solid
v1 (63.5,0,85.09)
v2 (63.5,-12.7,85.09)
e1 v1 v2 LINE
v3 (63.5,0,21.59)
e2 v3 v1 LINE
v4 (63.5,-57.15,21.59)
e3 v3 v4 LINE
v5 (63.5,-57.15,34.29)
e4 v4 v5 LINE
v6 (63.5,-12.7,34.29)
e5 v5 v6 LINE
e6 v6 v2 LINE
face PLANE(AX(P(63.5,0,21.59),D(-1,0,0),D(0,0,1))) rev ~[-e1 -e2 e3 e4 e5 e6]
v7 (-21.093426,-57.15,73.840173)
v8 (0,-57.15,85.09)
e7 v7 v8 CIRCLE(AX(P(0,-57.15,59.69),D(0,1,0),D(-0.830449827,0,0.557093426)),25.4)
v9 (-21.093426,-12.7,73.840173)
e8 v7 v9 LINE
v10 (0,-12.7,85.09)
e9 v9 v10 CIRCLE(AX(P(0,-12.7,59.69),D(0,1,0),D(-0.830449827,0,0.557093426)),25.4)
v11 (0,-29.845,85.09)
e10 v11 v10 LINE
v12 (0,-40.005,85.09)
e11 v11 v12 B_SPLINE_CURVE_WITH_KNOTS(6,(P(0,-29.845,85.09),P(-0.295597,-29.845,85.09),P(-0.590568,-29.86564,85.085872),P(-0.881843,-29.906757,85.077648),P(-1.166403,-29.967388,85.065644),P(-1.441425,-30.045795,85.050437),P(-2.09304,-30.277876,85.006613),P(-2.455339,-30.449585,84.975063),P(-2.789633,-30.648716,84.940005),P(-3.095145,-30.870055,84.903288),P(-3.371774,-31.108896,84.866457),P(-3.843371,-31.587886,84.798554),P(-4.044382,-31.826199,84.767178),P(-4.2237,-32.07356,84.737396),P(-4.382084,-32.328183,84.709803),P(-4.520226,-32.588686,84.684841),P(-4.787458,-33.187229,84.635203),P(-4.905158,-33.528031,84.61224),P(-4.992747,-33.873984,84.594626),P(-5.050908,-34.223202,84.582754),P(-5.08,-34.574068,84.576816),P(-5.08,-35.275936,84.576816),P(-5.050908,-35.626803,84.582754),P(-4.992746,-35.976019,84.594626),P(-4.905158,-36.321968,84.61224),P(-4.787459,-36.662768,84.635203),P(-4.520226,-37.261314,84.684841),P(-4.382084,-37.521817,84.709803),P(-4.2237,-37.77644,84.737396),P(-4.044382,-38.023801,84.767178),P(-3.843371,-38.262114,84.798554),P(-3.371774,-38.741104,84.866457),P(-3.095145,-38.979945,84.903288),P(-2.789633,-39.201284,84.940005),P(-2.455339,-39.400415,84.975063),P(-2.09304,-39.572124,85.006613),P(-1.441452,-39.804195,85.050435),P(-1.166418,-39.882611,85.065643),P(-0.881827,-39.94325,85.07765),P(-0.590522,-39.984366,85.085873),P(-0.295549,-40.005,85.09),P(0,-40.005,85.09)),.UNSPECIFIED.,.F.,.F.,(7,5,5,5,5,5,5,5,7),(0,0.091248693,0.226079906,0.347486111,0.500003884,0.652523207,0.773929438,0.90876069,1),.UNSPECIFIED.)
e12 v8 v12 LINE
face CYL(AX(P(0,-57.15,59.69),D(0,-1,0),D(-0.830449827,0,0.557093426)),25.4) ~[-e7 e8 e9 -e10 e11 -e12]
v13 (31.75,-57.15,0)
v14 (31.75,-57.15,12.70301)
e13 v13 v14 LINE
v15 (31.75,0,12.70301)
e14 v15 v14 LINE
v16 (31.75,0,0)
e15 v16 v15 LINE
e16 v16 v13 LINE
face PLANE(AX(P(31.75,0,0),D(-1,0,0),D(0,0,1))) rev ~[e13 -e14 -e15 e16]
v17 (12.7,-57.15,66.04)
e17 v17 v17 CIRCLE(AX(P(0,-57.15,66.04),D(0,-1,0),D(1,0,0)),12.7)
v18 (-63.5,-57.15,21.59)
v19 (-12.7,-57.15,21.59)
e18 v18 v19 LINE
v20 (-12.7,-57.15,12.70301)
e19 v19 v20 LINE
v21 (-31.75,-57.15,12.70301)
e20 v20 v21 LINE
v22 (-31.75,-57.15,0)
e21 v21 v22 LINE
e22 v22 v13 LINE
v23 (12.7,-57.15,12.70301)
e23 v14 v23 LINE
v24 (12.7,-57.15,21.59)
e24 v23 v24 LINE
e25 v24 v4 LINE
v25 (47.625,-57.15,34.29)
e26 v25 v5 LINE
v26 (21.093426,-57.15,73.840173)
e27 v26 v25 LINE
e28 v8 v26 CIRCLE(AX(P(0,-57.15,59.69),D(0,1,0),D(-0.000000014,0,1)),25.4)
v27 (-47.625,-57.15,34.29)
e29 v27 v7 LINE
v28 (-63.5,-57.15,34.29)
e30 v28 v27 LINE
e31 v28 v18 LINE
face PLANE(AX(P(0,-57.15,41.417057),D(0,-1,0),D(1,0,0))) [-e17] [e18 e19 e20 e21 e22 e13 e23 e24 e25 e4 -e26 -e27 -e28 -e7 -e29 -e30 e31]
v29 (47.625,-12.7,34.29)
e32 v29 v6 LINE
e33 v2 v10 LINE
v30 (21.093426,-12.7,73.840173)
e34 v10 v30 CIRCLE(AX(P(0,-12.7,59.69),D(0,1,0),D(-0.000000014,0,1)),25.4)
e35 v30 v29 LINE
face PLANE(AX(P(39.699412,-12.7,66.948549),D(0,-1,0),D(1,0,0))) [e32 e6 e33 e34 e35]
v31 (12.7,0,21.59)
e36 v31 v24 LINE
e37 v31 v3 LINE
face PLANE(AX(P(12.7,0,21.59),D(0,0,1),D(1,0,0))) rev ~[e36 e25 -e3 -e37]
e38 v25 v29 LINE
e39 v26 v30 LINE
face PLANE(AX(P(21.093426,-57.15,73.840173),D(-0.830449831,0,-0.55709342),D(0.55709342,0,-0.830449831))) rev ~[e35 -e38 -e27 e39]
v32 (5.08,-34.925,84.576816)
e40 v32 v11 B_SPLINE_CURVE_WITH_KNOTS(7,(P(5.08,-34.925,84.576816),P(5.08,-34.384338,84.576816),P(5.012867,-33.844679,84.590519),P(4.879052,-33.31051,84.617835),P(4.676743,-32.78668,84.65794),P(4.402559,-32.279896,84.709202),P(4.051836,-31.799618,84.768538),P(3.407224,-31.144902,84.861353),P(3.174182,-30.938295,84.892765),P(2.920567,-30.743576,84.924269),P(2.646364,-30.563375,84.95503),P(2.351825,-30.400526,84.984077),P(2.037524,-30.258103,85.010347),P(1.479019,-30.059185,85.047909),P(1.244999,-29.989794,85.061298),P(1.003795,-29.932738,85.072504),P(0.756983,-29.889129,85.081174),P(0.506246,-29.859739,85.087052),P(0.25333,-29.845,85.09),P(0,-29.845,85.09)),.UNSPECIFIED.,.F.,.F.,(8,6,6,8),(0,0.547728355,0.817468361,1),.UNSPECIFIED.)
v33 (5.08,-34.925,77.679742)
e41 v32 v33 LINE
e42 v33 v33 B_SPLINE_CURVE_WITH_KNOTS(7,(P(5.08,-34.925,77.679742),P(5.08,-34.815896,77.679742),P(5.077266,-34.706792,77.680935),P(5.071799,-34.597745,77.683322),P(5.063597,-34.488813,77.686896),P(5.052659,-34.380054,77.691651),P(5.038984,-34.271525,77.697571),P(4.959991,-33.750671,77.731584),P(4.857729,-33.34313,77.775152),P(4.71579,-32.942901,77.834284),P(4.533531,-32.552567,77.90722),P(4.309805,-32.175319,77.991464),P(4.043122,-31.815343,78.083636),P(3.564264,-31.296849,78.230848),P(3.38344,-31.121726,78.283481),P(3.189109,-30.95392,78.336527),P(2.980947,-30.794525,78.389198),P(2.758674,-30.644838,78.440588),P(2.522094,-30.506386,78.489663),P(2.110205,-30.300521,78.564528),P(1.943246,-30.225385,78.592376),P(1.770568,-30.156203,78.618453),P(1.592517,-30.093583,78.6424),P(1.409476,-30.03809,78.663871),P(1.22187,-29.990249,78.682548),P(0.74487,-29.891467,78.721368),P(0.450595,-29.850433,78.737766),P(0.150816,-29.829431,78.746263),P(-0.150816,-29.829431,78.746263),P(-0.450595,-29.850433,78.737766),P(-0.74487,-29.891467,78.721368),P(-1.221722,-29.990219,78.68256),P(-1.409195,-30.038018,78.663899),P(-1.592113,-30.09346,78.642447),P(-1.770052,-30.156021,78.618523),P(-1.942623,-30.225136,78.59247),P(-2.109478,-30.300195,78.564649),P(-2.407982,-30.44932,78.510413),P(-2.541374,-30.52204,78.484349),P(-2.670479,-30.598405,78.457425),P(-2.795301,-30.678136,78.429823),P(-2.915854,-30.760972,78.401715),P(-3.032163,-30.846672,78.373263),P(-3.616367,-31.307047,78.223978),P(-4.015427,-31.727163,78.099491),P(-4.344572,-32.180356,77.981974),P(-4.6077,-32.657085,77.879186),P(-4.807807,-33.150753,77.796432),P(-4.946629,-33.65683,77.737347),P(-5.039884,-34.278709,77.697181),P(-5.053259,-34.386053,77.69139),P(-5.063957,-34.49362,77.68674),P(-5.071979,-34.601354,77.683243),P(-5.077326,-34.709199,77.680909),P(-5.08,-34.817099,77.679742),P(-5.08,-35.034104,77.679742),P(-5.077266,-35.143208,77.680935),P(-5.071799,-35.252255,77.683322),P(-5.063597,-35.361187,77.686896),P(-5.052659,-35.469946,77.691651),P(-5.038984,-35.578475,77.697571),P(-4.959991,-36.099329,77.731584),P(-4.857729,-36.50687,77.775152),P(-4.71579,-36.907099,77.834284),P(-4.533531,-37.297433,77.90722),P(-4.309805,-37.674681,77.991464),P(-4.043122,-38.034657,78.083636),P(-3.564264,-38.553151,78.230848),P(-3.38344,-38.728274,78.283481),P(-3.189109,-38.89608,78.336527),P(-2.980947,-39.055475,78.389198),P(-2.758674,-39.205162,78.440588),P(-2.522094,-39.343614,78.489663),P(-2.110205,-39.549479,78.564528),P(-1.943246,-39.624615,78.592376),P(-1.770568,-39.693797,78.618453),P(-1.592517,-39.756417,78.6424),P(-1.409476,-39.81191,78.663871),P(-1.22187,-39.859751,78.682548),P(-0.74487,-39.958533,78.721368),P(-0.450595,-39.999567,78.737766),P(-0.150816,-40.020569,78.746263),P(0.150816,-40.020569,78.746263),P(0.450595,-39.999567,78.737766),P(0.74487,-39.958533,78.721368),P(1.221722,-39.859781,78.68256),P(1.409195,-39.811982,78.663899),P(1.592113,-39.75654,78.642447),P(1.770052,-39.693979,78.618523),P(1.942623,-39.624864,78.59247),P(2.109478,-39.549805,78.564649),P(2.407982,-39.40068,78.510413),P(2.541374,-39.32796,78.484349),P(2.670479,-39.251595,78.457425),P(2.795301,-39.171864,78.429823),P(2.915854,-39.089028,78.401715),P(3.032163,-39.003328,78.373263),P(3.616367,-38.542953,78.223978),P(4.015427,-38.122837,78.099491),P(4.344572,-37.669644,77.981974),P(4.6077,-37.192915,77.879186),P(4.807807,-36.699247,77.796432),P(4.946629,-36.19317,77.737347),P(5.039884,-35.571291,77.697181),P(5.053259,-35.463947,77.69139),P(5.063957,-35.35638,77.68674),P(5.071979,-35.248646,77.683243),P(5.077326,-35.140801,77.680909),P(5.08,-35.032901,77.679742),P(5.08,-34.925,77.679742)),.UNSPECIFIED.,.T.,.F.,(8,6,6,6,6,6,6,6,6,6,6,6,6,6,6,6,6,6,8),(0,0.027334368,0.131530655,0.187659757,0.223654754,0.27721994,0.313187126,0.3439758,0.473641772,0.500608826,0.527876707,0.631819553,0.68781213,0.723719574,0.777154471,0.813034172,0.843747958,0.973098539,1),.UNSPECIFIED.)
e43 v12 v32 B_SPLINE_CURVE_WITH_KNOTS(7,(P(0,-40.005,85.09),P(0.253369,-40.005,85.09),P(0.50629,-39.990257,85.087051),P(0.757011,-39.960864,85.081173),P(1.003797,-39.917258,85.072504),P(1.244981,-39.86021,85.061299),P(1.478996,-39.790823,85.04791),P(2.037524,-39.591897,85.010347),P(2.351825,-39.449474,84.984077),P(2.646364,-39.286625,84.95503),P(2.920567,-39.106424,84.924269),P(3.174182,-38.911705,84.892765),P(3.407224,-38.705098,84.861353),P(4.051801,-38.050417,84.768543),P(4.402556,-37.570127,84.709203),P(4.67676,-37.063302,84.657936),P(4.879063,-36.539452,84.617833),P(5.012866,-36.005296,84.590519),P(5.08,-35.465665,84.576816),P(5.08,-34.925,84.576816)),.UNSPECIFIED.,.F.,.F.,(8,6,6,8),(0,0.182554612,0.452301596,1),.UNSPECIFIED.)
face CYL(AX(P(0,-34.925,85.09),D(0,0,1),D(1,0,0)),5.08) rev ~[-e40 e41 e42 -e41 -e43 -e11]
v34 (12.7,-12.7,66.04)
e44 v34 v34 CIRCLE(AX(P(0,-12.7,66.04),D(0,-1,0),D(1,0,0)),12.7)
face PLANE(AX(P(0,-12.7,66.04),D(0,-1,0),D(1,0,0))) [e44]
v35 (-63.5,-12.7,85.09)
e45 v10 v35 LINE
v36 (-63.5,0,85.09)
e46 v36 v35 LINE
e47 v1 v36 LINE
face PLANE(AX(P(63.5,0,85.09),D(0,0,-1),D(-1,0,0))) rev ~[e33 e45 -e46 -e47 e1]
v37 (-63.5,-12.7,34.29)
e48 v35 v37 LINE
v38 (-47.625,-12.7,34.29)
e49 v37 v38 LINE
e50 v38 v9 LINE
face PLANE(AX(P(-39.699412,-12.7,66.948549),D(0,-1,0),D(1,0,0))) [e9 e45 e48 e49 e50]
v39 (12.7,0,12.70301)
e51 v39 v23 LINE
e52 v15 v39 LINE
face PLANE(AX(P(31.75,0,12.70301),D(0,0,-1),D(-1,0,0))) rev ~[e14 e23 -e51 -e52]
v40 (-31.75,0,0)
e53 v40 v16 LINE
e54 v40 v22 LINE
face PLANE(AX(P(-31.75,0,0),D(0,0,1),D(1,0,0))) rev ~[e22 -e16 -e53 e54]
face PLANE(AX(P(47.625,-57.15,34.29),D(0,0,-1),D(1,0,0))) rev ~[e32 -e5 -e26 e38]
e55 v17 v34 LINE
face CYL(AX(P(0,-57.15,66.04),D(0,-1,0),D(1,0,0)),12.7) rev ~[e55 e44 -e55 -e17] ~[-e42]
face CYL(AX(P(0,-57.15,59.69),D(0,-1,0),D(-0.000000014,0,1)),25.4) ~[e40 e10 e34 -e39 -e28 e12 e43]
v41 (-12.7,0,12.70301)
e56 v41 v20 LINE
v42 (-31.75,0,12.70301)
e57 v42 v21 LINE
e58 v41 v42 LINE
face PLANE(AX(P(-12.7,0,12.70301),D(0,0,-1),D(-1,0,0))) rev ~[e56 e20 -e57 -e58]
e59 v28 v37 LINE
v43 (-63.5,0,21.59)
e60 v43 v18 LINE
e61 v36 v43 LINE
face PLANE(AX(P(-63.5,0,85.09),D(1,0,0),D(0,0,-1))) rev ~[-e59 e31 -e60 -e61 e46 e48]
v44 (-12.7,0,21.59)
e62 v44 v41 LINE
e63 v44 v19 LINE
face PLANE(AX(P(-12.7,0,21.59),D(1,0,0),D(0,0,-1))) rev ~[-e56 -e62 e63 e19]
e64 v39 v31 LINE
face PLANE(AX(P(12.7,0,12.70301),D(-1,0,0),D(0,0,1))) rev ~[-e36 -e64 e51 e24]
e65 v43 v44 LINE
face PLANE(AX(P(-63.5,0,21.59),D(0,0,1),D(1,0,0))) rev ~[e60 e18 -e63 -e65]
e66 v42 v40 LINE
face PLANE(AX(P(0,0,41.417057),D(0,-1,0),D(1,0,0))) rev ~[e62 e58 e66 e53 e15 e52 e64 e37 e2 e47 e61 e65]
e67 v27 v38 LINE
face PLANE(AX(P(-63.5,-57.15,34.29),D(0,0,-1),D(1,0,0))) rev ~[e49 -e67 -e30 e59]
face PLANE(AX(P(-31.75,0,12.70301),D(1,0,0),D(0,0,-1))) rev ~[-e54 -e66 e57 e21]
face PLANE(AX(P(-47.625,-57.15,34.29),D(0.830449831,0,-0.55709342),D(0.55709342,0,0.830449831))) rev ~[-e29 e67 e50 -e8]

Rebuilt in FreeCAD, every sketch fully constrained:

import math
import FreeCAD as App
import Part
import Sketcher
from FreeCAD import Vector
Q = App.Units.Quantity

doc = App.newDocument("Part")
body = doc.addObject("PartDesign::Body", "Body")

sketch1 = body.newObject("Sketcher::SketchObject", "Sketch")
sketch1.AttachmentSupport = (doc.getObject("XZ_Plane"), [""])
sketch1.MapMode = "FlatFace"
sketch1.addGeometry([
    Part.LineSegment(Vector(-32, 0, 0), Vector(32, 0, 0)),
    Part.LineSegment(Vector(32, 0, 0), Vector(32, 13, 0)),
    Part.LineSegment(Vector(32, 13, 0), Vector(13, 13, 0)),
    Part.LineSegment(Vector(13, 13, 0), Vector(13, 22, 0)),
    Part.LineSegment(Vector(13, 22, 0), Vector(64, 22, 0)),
    Part.LineSegment(Vector(64, 22, 0), Vector(64, 85, 0)),
    Part.LineSegment(Vector(64, 85, 0), Vector(-64, 85, 0)),
    Part.LineSegment(Vector(-64, 85, 0), Vector(-64, 22, 0)),
    Part.LineSegment(Vector(-64, 22, 0), Vector(-13, 22, 0)),
    Part.LineSegment(Vector(-13, 22, 0), Vector(-13, 13, 0)),
    Part.LineSegment(Vector(-13, 13, 0), Vector(-32, 13, 0)),
    Part.LineSegment(Vector(-32, 13, 0), Vector(-32, 0, 0)),
], False)
sketch1.addConstraint([
    Sketcher.Constraint("Coincident", 0, 2, 1, 1),
    Sketcher.Constraint("Coincident", 1, 2, 2, 1),
    Sketcher.Constraint("Coincident", 2, 2, 3, 1),
    Sketcher.Constraint("Coincident", 3, 2, 4, 1),
    Sketcher.Constraint("Coincident", 4, 2, 5, 1),
    Sketcher.Constraint("Coincident", 5, 2, 6, 1),
    Sketcher.Constraint("Coincident", 6, 2, 7, 1),
    Sketcher.Constraint("Coincident", 7, 2, 8, 1),
    Sketcher.Constraint("Coincident", 8, 2, 9, 1),
    Sketcher.Constraint("Coincident", 9, 2, 10, 1),
    Sketcher.Constraint("Coincident", 10, 2, 11, 1),
    Sketcher.Constraint("Coincident", 11, 2, 0, 1),
    Sketcher.Constraint("Horizontal", 0),
    Sketcher.Constraint("Vertical", 1),
    Sketcher.Constraint("Horizontal", 2),
    Sketcher.Constraint("Vertical", 3),
    Sketcher.Constraint("Horizontal", 4),
    Sketcher.Constraint("Vertical", 5),
    Sketcher.Constraint("Horizontal", 6),
    Sketcher.Constraint("Vertical", 7),
    Sketcher.Constraint("Horizontal", 8),
    Sketcher.Constraint("Vertical", 9),
    Sketcher.Constraint("Horizontal", 10),
    Sketcher.Constraint("Vertical", 11),
    Sketcher.Constraint("Symmetric", 0, 2, 11, 2, -1, 1),
    Sketcher.Constraint("Symmetric", 4, 2, 7, 2, -2),
    Sketcher.Constraint("Symmetric", 2, 2, 9, 2, -2),
    Sketcher.Constraint("Equal", 0, 5),
    Sketcher.Constraint("DistanceX", 4, 1, 4, 2, Q("2 in")),
    Sketcher.Constraint("DistanceX", 6, 2, 6, 1, Q("5 in")),
    Sketcher.Constraint("DistanceX", 0, 1, 0, 2, Q("2.5 in")),
    Sketcher.Constraint("DistanceY", -1, 1, 3, 2, Q("0.85 in")),
    Sketcher.Constraint("DistanceY", 1, 1, 1, 2, 12.70301),
])
pad1 = body.newObject("PartDesign::Pad", "Pad")
pad1.Profile = sketch1
pad1.Length = Q("2.25 in")

sketch2 = body.newObject("Sketcher::SketchObject", "Sketch001")
sketch2.AttachmentSupport = (doc.getObject("XZ_Plane"), [""])
sketch2.MapMode = "FlatFace"
sketch2.AttachmentOffset = App.Placement(Vector(0, 0, 2.25 * 25.4), App.Rotation())
sketch2.addGeometry([
    Part.LineSegment(Vector(-64, 85, 0), Vector(-64, 34, 0)),
    Part.LineSegment(Vector(-64, 34, 0), Vector(-48, 34, 0)),
    Part.LineSegment(Vector(-48, 34, 0), Vector(-21, 74, 0)),
    Part.ArcOfCircle(Part.Circle(Vector(0, 60, 0), Vector(0, 0, 1), 25), math.radians(90), math.radians(146)),
    Part.LineSegment(Vector(0, 85, 0), Vector(-64, 85, 0)),
    Part.LineSegment(Vector(64, 85, 0), Vector(0, 85, 0)),
    Part.ArcOfCircle(Part.Circle(Vector(0, 60, 0), Vector(0, 0, 1), 25), math.radians(34), math.radians(90)),
    Part.LineSegment(Vector(21, 74, 0), Vector(48, 34, 0)),
    Part.LineSegment(Vector(48, 34, 0), Vector(64, 34, 0)),
    Part.LineSegment(Vector(64, 34, 0), Vector(64, 85, 0)),
], False)
sketch2.addConstraint([
    Sketcher.Constraint("Coincident", 0, 2, 1, 1),
    Sketcher.Constraint("Coincident", 1, 2, 2, 1),
    Sketcher.Constraint("Tangent", 2, 2, 3, 2),
    Sketcher.Constraint("Tangent", 3, 1, 4, 1),
    Sketcher.Constraint("Coincident", 4, 2, 0, 1),
    Sketcher.Constraint("Tangent", 5, 2, 6, 2),
    Sketcher.Constraint("Tangent", 6, 1, 7, 1),
    Sketcher.Constraint("Coincident", 7, 2, 8, 1),
    Sketcher.Constraint("Coincident", 8, 2, 9, 1),
    Sketcher.Constraint("Coincident", 9, 2, 5, 1),
    Sketcher.Constraint("Vertical", 0),
    Sketcher.Constraint("Horizontal", 1),
    Sketcher.Constraint("Horizontal", 4),
    Sketcher.Constraint("Horizontal", 5),
    Sketcher.Constraint("Horizontal", 8),
    Sketcher.Constraint("Vertical", 9),
    Sketcher.Constraint("Coincident", 6, 3, 3, 3),
    Sketcher.Constraint("Equal", 3, 6),
    Sketcher.Constraint("Symmetric", 2, 2, 6, 1, -2),
    Sketcher.Constraint("Symmetric", 0, 2, 8, 2, -2),
    Sketcher.Constraint("Radius", 3, Q("1 in")),
    Sketcher.Constraint("DistanceY", 0, 2, 0, 1, Q("2 in")),
    Sketcher.Constraint("DistanceX", 4, 2, 4, 1, Q("2.5 in")),
    Sketcher.Constraint("DistanceX", 1, 1, 1, 2, Q("0.625 in")),
    Sketcher.Constraint("DistanceY", -1, 1, 3, 3, Q("2.35 in")),
])
pocket1 = body.newObject("PartDesign::Pocket", "Pocket")
pocket1.Profile = sketch2
pocket1.Length = Q("1.75 in")

sketch3 = body.newObject("Sketcher::SketchObject", "Sketch002")
sketch3.AttachmentSupport = (doc.getObject("XZ_Plane"), [""])
sketch3.MapMode = "FlatFace"
sketch3.AttachmentOffset = App.Placement(Vector(0, 0, 2.25 * 25.4), App.Rotation())
sketch3.addGeometry(Part.Circle(Vector(0, 66, 0), Vector(0, 0, 1), 13), False)
sketch3.addConstraint([
    Sketcher.Constraint("PointOnObject", 0, 3, -2),
    Sketcher.Constraint("Diameter", 0, Q("1 in")),
    Sketcher.Constraint("DistanceY", -1, 1, 0, 3, Q("2.6 in")),
])
pocket2 = body.newObject("PartDesign::Pocket", "Pocket001")
pocket2.Profile = sketch3
pocket2.Length = Q("1.75 in")

sketch4 = body.newObject("Sketcher::SketchObject", "Sketch003")
sketch4.AttachmentSupport = (doc.getObject("XY_Plane"), [""])
sketch4.MapMode = "FlatFace"
sketch4.AttachmentOffset = App.Placement(Vector(0, 0, 3.35 * 25.4), App.Rotation())
sketch4.addGeometry(Part.Circle(Vector(0, -35, 0), Vector(0, 0, 1), 5), False)
sketch4.addConstraint([
    Sketcher.Constraint("PointOnObject", 0, 3, -2),
    Sketcher.Constraint("Diameter", 0, Q("0.4 in")),
    Sketcher.Constraint("DistanceY", 0, 3, -1, 1, Q("1.375 in")),
])
pocket3 = body.newObject("PartDesign::Pocket", "Pocket002")
pocket3.Profile = sketch4
pocket3.Length = Q("1 in")

doc.recompute()
